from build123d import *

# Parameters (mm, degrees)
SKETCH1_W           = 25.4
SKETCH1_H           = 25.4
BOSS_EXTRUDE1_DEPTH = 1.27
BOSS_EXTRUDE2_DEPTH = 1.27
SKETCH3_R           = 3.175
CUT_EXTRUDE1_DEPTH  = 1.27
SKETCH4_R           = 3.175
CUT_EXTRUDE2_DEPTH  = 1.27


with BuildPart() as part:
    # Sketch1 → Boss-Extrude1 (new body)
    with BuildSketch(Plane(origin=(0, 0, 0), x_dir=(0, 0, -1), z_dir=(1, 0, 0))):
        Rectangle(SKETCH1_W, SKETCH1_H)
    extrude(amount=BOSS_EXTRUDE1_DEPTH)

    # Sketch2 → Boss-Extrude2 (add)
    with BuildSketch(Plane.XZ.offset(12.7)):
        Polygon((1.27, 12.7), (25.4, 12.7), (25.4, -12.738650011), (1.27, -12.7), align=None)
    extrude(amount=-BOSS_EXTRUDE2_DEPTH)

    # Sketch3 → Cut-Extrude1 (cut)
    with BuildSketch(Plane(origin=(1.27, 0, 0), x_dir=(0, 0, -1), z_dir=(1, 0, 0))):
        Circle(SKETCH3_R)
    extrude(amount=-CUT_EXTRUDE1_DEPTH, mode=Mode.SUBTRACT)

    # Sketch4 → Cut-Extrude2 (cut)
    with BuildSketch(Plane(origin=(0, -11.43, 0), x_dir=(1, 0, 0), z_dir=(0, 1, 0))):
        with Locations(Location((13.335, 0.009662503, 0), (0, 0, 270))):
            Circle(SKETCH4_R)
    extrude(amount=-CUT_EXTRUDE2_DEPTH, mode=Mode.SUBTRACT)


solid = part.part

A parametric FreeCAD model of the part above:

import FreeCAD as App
import Part
import Sketcher

V = App.Vector
Q = App.Units.Quantity

doc = App.newDocument("Part")
body = doc.addObject("PartDesign::Body", "Body")

# Sketch on YZ plane
sketch1 = body.newObject("Sketcher::SketchObject", "Sketch")
sketch1.AttachmentSupport = (doc.getObject("YZ_Plane"), [""])
sketch1.MapMode = "FlatFace"
sketch1.addGeometry(Part.LineSegment(V(12.7, 12.7, 0), V(-12.7, 12.7, 0)), False)
sketch1.addGeometry(Part.LineSegment(V(-12.7, 12.7, 0), V(-12.7, -12.7, 0)), False)
sketch1.addGeometry(Part.LineSegment(V(-12.7, -12.7, 0), V(12.7, -12.7, 0)), False)
sketch1.addGeometry(Part.LineSegment(V(12.7, -12.7, 0), V(12.7, 12.7, 0)), False)
sketch1.addConstraint(Sketcher.Constraint("Coincident", 0, 2, 1, 1))
sketch1.addConstraint(Sketcher.Constraint("Coincident", 1, 2, 2, 1))
sketch1.addConstraint(Sketcher.Constraint("Coincident", 2, 2, 3, 1))
sketch1.addConstraint(Sketcher.Constraint("Coincident", 3, 2, 0, 1))
sketch1.addConstraint(Sketcher.Constraint("Horizontal", 0))
sketch1.addConstraint(Sketcher.Constraint("Vertical", 1))
sketch1.addConstraint(Sketcher.Constraint("Horizontal", 2))
sketch1.addConstraint(Sketcher.Constraint("Vertical", 3))
sketch1.addConstraint(Sketcher.Constraint("Symmetric", 0, 2, 2, 2, -1, 1))
sketch1.addConstraint(Sketcher.Constraint("Equal", 2, 1))
sketch1.addConstraint(Sketcher.Constraint("DistanceX", 0, 2, 0, 1, Q("1 in")))
pad1 = body.newObject("PartDesign::Pad", "Pad")
pad1.Profile = sketch1
pad1.Length = Q("0.05 in")

# Sketch on XZ plane
sketch2 = body.newObject("Sketcher::SketchObject", "Sketch001")
sketch2.AttachmentSupport = (doc.getObject("XZ_Plane"), [""])
sketch2.MapMode = "FlatFace"
sketch2.AttachmentOffset = App.Placement(V(0, 0, 0.5 * 25.4), App.Rotation())
sketch2.addGeometry(Part.LineSegment(V(25.4, 12.7, 0), V(1.27, 12.7, 0)), False)
sketch2.addGeometry(Part.LineSegment(V(1.27, 12.7, 0), V(1.27, -12.7, 0)), False)
sketch2.addGeometry(Part.LineSegment(V(1.27, -12.7, 0), V(25.4, -12.73865, 0)), False)
sketch2.addGeometry(Part.LineSegment(V(25.4, -12.73865, 0), V(25.4, 12.7, 0)), False)
sketch2.addConstraint(Sketcher.Constraint("Coincident", 0, 2, 1, 1))
sketch2.addConstraint(Sketcher.Constraint("Coincident", 1, 2, 2, 1))
sketch2.addConstraint(Sketcher.Constraint("Coincident", 2, 2, 3, 1))
sketch2.addConstraint(Sketcher.Constraint("Coincident", 3, 2, 0, 1))
sketch2.addConstraint(Sketcher.Constraint("Horizontal", 0))
sketch2.addConstraint(Sketcher.Constraint("Vertical", 1))
sketch2.addConstraint(Sketcher.Constraint("Vertical", 3))
sketch2.addConstraint(Sketcher.Constraint("DistanceY", 1, 2, 1, 1, Q("1 in")))
sketch2.addConstraint(Sketcher.Constraint("DistanceX", -1, 1, 2, 2, Q("1 in")))
sketch2.addConstraint(Sketcher.Constraint("DistanceX", 0, 2, 0, 1, Q("0.95 in")))
sketch2.addConstraint(Sketcher.Constraint("DistanceY", -1, 1, 0, 2, Q("0.5 in")))
sketch2.addConstraint(Sketcher.Constraint("DistanceY", 3, 1, 3, 2, Q("25.43865 mm")))
pad2 = body.newObject("PartDesign::Pad", "Pad001")
pad2.Profile = sketch2
pad2.Length = Q("0.05 in")
pad2.Reversed = True

# Sketch on YZ plane
sketch3 = body.newObject("Sketcher::SketchObject", "Sketch002")
sketch3.AttachmentSupport = (doc.getObject("YZ_Plane"), [""])
sketch3.MapMode = "FlatFace"
sketch3.AttachmentOffset = App.Placement(V(0, 0, 0.05 * 25.4), App.Rotation())
sketch3.addGeometry(Part.Circle(V(0, 0, 0), V(0, 0, 1), 3.175), False)
sketch3.addConstraint(Sketcher.Constraint("Coincident", 0, 3, -1, 1))
sketch3.addConstraint(Sketcher.Constraint("Diameter", 0, Q("0.25 in")))
pocket1 = body.newObject("PartDesign::Pocket", "Pocket")
pocket1.Profile = sketch3
pocket1.Length = Q("0.05 in")

# Sketch on XZ plane
sketch4 = body.newObject("Sketcher::SketchObject", "Sketch003")
sketch4.AttachmentSupport = (doc.getObject("XZ_Plane"), [""])
sketch4.MapMode = "FlatFace"
sketch4.AttachmentOffset = App.Placement(V(0, 0, 0.45 * 25.4), App.Rotation())
sketch4.addGeometry(Part.Circle(V(13.335, -0.009663, 0), V(0, 0, 1), 3.175), False)
sketch4.addConstraint(Sketcher.Constraint("Diameter", 0, Q("0.25 in")))
sketch4.addConstraint(Sketcher.Constraint("DistanceX", -1, 1, 0, 3, Q("0.525 in")))
sketch4.addConstraint(Sketcher.Constraint("DistanceY", 0, 3, -1, 1, Q("0.009663 mm")))
pocket2 = body.newObject("PartDesign::Pocket", "Pocket001")
pocket2.Profile = sketch4
pocket2.Length = Q("0.05 in")
pocket2.Reversed = True

doc.recompute()
